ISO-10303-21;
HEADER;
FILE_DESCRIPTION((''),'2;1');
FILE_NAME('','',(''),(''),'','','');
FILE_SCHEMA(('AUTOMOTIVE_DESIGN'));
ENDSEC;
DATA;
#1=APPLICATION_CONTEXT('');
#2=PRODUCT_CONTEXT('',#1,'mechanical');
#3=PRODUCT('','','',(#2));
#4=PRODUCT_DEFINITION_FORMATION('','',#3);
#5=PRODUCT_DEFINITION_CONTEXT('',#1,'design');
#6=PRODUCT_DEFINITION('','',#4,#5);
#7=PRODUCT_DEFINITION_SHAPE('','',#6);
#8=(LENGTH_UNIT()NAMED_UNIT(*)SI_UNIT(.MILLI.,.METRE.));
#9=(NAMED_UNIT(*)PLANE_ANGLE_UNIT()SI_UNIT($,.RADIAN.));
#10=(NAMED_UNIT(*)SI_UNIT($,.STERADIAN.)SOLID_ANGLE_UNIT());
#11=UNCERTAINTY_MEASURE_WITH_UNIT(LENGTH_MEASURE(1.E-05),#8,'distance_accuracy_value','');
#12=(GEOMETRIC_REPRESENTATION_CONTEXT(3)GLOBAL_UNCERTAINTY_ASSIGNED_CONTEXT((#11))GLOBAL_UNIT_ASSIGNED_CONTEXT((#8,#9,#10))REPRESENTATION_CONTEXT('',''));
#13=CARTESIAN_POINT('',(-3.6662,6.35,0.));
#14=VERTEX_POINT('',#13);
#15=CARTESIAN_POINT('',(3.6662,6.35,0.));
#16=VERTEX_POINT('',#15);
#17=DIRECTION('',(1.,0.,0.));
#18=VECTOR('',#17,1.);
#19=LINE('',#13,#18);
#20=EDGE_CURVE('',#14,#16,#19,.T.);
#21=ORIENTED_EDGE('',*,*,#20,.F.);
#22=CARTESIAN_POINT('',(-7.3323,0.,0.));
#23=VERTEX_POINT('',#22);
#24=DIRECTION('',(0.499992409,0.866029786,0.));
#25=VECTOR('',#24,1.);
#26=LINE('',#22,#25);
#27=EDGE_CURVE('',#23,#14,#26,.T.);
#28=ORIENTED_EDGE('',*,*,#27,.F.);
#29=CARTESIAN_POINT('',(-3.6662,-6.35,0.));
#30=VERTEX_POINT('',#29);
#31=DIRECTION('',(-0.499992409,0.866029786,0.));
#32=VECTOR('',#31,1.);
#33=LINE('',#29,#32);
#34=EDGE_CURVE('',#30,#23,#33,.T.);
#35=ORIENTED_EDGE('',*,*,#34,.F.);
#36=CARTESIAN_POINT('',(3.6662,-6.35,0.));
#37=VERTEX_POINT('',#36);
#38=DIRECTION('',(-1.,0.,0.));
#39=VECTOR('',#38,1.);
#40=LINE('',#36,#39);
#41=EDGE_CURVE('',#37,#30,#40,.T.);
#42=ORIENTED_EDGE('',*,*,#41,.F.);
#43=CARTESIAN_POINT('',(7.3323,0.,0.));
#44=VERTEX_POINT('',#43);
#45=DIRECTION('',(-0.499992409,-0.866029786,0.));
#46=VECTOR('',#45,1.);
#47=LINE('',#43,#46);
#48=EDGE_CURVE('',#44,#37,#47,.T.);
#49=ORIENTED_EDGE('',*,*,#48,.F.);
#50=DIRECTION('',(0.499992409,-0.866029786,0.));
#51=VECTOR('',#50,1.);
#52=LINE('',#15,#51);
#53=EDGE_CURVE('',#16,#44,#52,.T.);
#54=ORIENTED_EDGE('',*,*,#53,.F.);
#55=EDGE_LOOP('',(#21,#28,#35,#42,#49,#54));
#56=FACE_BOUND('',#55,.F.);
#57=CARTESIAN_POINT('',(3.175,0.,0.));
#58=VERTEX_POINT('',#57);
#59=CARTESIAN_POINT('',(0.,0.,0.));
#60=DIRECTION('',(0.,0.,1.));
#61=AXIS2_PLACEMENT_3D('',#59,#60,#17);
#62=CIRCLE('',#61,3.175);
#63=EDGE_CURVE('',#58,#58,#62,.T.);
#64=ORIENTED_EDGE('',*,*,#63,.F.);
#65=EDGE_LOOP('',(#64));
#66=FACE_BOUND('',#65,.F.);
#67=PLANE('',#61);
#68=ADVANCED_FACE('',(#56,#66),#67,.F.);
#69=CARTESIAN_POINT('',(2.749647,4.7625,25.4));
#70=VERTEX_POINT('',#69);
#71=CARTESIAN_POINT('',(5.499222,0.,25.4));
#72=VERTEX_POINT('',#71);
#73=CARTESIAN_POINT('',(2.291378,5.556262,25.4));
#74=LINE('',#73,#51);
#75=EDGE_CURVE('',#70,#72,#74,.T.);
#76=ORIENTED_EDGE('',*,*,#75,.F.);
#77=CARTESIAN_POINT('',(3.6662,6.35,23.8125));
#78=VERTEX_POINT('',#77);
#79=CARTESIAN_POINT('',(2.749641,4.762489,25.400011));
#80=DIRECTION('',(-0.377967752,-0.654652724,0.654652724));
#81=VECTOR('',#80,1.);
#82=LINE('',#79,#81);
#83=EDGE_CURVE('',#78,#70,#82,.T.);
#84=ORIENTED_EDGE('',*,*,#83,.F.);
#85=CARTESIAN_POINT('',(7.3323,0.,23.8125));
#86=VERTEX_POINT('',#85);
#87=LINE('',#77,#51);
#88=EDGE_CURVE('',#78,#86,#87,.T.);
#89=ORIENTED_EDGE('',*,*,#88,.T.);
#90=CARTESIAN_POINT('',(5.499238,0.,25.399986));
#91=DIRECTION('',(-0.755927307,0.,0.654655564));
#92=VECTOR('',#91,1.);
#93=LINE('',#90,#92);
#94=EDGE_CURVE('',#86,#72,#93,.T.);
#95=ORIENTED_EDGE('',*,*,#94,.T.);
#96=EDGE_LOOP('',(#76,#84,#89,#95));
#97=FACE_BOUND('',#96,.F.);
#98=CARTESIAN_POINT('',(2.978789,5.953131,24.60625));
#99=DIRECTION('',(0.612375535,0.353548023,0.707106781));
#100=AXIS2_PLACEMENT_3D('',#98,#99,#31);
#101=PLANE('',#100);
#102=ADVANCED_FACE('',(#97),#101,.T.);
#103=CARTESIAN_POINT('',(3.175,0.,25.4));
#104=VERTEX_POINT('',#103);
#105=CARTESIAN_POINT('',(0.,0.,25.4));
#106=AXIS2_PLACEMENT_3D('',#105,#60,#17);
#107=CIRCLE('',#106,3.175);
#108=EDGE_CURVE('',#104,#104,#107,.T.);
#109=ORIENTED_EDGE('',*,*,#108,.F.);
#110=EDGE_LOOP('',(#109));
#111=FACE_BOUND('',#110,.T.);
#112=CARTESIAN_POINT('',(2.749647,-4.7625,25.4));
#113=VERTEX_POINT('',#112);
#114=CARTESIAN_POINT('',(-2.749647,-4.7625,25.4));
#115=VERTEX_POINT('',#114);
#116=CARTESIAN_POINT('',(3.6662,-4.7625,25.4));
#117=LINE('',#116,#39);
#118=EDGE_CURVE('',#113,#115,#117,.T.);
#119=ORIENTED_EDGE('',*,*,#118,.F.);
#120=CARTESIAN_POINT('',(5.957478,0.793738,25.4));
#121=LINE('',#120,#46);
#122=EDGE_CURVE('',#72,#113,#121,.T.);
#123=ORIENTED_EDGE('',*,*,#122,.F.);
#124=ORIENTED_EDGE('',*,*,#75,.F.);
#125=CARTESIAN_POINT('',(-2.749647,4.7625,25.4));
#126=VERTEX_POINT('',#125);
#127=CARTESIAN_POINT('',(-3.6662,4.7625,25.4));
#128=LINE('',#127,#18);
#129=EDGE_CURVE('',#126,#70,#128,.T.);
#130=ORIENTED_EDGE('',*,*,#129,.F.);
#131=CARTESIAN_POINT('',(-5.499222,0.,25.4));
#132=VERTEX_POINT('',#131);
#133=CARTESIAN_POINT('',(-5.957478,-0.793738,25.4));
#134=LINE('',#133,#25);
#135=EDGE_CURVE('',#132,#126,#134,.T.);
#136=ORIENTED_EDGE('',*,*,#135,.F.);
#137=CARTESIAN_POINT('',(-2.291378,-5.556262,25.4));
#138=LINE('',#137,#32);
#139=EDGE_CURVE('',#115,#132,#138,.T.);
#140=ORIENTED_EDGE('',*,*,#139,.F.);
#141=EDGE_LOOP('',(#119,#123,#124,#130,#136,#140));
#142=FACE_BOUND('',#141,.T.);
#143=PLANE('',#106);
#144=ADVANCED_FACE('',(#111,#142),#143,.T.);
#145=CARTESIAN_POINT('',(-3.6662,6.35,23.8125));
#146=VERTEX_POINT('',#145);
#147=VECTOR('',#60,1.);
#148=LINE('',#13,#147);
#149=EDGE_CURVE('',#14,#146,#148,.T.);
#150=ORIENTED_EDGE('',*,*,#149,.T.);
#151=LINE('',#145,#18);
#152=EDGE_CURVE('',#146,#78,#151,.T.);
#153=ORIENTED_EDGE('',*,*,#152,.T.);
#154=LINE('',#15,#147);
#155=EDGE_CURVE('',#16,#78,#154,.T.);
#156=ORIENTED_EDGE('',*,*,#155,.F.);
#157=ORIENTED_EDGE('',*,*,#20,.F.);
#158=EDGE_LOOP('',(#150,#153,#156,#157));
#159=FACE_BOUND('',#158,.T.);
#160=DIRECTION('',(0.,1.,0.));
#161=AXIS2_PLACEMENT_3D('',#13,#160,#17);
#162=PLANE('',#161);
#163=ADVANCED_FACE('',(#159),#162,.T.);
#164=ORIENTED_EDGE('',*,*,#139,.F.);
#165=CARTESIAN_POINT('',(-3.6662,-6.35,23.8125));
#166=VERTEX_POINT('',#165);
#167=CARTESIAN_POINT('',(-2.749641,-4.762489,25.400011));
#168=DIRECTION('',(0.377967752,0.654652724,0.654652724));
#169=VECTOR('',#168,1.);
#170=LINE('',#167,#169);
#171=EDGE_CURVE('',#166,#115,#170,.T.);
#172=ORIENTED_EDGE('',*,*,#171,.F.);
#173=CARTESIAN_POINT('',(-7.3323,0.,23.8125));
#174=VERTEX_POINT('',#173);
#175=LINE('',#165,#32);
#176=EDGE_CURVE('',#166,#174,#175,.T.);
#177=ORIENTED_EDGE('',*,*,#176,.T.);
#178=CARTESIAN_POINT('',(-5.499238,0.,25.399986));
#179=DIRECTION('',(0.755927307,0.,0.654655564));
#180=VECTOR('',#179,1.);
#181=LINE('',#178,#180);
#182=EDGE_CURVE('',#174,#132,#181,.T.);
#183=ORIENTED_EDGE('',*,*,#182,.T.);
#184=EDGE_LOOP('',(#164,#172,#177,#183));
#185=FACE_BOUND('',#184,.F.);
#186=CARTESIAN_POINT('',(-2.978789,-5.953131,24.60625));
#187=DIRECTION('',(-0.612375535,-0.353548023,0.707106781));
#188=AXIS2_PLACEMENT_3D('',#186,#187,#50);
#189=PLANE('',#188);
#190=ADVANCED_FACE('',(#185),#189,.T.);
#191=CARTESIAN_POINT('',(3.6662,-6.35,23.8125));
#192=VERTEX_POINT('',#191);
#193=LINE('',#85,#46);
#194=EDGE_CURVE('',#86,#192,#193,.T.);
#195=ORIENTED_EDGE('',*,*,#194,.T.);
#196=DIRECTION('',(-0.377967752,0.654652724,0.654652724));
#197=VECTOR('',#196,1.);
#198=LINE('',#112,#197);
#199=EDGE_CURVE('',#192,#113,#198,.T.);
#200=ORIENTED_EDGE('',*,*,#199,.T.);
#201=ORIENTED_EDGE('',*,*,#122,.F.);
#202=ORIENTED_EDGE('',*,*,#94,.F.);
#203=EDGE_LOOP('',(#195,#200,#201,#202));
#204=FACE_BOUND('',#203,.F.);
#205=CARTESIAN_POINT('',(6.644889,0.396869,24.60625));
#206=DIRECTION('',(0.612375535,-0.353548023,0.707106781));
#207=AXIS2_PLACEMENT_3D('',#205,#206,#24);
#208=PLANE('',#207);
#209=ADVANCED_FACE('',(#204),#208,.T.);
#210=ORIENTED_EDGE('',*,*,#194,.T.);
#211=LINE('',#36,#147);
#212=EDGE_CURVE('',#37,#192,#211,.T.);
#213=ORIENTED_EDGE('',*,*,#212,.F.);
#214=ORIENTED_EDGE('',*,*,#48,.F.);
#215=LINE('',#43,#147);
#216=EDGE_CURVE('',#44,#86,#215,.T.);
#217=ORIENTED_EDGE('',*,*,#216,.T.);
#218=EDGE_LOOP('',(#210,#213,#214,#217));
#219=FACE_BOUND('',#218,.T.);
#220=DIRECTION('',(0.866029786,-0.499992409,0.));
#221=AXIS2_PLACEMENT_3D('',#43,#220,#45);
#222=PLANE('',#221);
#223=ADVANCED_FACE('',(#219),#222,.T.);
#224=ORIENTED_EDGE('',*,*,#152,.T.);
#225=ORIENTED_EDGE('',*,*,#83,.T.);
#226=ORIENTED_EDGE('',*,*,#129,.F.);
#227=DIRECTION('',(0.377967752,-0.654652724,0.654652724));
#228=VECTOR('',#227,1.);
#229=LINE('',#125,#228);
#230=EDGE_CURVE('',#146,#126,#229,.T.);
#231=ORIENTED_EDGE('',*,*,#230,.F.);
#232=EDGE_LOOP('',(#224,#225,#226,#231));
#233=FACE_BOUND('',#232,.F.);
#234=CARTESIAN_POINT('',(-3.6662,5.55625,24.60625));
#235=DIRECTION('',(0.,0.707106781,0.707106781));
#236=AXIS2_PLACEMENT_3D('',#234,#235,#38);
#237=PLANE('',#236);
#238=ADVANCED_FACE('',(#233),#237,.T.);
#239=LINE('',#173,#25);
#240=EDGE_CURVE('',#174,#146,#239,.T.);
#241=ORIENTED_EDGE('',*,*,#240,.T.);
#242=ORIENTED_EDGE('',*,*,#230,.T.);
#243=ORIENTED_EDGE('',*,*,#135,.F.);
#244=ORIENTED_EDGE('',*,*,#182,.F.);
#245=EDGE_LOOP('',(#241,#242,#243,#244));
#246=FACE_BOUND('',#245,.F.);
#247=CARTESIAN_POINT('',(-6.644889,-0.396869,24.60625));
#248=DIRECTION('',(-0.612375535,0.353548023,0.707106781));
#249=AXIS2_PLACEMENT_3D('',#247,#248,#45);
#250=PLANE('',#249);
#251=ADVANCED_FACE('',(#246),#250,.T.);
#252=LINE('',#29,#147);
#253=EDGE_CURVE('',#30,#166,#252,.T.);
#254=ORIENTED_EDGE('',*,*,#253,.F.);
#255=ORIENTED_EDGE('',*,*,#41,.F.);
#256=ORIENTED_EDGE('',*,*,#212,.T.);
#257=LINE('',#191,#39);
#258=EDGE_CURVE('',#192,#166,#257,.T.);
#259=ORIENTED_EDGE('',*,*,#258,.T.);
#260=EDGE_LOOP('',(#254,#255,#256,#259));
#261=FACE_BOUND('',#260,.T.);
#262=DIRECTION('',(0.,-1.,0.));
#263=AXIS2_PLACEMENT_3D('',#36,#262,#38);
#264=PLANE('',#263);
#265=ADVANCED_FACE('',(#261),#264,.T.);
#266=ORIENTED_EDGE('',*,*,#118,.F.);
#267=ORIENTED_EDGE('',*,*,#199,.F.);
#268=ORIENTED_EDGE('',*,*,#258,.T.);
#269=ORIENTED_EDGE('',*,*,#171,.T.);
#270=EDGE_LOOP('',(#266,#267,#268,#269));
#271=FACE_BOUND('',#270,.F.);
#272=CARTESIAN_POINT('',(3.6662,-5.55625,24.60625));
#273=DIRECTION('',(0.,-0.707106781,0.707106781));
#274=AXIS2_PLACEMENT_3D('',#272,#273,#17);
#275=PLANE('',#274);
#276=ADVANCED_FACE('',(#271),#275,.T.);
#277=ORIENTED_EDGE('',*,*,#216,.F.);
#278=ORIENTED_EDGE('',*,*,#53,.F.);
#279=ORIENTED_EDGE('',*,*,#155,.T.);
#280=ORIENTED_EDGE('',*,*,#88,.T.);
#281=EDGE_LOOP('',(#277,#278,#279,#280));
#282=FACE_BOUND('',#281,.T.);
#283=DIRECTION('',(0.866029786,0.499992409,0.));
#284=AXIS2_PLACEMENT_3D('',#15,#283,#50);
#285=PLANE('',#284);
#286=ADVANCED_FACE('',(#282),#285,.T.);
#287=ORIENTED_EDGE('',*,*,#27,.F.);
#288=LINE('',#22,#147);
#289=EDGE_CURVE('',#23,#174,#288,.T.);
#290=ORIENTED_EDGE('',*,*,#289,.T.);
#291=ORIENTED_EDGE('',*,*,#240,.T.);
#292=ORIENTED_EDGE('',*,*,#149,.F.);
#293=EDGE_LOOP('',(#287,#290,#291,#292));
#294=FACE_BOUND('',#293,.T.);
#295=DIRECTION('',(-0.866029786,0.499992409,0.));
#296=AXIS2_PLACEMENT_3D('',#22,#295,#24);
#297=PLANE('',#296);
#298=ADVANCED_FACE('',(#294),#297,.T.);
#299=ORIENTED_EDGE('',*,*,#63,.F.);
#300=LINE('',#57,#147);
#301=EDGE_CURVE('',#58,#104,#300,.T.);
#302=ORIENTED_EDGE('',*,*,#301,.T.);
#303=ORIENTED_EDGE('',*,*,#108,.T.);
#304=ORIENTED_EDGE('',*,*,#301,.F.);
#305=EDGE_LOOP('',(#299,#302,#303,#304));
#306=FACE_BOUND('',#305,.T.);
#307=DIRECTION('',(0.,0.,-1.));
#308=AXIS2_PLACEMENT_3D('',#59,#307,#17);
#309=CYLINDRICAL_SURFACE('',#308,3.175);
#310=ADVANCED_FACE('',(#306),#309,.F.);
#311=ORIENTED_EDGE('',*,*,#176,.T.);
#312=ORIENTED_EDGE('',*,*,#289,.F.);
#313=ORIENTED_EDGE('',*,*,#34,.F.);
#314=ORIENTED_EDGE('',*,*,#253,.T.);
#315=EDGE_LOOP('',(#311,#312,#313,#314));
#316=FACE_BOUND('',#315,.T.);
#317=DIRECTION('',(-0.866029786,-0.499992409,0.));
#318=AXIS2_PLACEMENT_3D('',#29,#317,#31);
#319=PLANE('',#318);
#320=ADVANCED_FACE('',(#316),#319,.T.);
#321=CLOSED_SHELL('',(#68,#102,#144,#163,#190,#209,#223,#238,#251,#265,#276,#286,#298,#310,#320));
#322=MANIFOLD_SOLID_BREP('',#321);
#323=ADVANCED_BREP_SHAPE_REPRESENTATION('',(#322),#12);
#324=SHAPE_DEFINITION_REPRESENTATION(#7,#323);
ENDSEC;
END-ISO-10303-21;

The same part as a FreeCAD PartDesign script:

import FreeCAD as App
import Part
import Sketcher
Q = App.Units.Quantity


def edges_at(feature, points):
    """Names of the edges that pass closest to the given points."""
    edges = feature.Shape.Edges
    near = lambda p: min(range(len(edges)), key=lambda i: edges[i].distToShape(Part.Vertex(*p))[0])
    return sorted({f"Edge{near(p) + 1}" for p in points})


def add_polygon(sketch, points):
    """Adds a closed chain of lines whose ends are joined by coincident constraints."""
    first, n = sketch.GeometryCount, len(points)
    for a, b in zip(points, points[1:] + points[:1]):
        sketch.addGeometry(Part.LineSegment(App.Vector(*a, 0), App.Vector(*b, 0)), False)
    for i in range(n):
        sketch.addConstraint(Sketcher.Constraint("Coincident", first + i, 2, first + (i + 1) % n, 1))

doc = App.newDocument("Part")
body = doc.addObject("PartDesign::Body", "Body")

sketch1 = doc.addObject("Sketcher::SketchObject", "Sketch")
body.addObject(sketch1)
sketch1.AttachmentSupport = (doc.XY_Plane, [""])
sketch1.MapMode = "FlatFace"
add_polygon(sketch1, [(3.7, -6.3), (7.3, 0), (3.7, 6.3), (-3.7, 6.3), (-7.3, 0), (-3.7, -6.3)])
sketch1.addGeometry(Part.Circle(App.Vector(0, 0, 0), App.Vector(0, 0, 1), 3.2), False)
sketch1.addConstraint(Sketcher.Constraint("Horizontal", 2))
sketch1.addConstraint(Sketcher.Constraint("Horizontal", 5))
sketch1.addConstraint(Sketcher.Constraint("Coincident", 6, 3, -1, 1))
sketch1.addConstraint(Sketcher.Constraint("Symmetric", 0, 2, 3, 2, -1, 1))
sketch1.addConstraint(Sketcher.Constraint("Symmetric", 1, 2, 4, 2, -1, 1))
sketch1.addConstraint(Sketcher.Constraint("PointOnObject", 0, 2, -1))
sketch1.addConstraint(Sketcher.Constraint("Parallel", 0, 3))
sketch1.addConstraint(Sketcher.Constraint("Vertical", 2, 2, 4, 2))
sketch1.addConstraint(Sketcher.Constraint("Diameter", 6, Q("0.25 in")))
sketch1.addConstraint(Sketcher.Constraint("DistanceY", 4, 2, 2, 2, Q("0.5 in")))
sketch1.addConstraint(Sketcher.Constraint("Angle", 0, Q("60.0005 deg")))
sketch1.addConstraint(Sketcher.Constraint("DistanceX", 2, 2, 0, 2, Q("0.433 in")))
pad1 = doc.addObject("PartDesign::Pad", "Pad")
body.addObject(pad1)
pad1.Profile = sketch1
pad1.Length = Q("1 in")
doc.recompute()

chamfer = doc.addObject("PartDesign::Chamfer", "Chamfer")
body.addObject(chamfer)
chamfer.Base = (pad1, edges_at(pad1, [
    (5.499, 3.175, 25.4),
    (0, 6.35, 25.4),
    (5.499, -3.175, 25.4),
    (0, -6.35, 25.4),
    (-5.499, -3.175, 25.4),
    (-5.499, 3.175, 25.4),
]))
chamfer.Size = Q("0.0625 in")

doc.recompute()
